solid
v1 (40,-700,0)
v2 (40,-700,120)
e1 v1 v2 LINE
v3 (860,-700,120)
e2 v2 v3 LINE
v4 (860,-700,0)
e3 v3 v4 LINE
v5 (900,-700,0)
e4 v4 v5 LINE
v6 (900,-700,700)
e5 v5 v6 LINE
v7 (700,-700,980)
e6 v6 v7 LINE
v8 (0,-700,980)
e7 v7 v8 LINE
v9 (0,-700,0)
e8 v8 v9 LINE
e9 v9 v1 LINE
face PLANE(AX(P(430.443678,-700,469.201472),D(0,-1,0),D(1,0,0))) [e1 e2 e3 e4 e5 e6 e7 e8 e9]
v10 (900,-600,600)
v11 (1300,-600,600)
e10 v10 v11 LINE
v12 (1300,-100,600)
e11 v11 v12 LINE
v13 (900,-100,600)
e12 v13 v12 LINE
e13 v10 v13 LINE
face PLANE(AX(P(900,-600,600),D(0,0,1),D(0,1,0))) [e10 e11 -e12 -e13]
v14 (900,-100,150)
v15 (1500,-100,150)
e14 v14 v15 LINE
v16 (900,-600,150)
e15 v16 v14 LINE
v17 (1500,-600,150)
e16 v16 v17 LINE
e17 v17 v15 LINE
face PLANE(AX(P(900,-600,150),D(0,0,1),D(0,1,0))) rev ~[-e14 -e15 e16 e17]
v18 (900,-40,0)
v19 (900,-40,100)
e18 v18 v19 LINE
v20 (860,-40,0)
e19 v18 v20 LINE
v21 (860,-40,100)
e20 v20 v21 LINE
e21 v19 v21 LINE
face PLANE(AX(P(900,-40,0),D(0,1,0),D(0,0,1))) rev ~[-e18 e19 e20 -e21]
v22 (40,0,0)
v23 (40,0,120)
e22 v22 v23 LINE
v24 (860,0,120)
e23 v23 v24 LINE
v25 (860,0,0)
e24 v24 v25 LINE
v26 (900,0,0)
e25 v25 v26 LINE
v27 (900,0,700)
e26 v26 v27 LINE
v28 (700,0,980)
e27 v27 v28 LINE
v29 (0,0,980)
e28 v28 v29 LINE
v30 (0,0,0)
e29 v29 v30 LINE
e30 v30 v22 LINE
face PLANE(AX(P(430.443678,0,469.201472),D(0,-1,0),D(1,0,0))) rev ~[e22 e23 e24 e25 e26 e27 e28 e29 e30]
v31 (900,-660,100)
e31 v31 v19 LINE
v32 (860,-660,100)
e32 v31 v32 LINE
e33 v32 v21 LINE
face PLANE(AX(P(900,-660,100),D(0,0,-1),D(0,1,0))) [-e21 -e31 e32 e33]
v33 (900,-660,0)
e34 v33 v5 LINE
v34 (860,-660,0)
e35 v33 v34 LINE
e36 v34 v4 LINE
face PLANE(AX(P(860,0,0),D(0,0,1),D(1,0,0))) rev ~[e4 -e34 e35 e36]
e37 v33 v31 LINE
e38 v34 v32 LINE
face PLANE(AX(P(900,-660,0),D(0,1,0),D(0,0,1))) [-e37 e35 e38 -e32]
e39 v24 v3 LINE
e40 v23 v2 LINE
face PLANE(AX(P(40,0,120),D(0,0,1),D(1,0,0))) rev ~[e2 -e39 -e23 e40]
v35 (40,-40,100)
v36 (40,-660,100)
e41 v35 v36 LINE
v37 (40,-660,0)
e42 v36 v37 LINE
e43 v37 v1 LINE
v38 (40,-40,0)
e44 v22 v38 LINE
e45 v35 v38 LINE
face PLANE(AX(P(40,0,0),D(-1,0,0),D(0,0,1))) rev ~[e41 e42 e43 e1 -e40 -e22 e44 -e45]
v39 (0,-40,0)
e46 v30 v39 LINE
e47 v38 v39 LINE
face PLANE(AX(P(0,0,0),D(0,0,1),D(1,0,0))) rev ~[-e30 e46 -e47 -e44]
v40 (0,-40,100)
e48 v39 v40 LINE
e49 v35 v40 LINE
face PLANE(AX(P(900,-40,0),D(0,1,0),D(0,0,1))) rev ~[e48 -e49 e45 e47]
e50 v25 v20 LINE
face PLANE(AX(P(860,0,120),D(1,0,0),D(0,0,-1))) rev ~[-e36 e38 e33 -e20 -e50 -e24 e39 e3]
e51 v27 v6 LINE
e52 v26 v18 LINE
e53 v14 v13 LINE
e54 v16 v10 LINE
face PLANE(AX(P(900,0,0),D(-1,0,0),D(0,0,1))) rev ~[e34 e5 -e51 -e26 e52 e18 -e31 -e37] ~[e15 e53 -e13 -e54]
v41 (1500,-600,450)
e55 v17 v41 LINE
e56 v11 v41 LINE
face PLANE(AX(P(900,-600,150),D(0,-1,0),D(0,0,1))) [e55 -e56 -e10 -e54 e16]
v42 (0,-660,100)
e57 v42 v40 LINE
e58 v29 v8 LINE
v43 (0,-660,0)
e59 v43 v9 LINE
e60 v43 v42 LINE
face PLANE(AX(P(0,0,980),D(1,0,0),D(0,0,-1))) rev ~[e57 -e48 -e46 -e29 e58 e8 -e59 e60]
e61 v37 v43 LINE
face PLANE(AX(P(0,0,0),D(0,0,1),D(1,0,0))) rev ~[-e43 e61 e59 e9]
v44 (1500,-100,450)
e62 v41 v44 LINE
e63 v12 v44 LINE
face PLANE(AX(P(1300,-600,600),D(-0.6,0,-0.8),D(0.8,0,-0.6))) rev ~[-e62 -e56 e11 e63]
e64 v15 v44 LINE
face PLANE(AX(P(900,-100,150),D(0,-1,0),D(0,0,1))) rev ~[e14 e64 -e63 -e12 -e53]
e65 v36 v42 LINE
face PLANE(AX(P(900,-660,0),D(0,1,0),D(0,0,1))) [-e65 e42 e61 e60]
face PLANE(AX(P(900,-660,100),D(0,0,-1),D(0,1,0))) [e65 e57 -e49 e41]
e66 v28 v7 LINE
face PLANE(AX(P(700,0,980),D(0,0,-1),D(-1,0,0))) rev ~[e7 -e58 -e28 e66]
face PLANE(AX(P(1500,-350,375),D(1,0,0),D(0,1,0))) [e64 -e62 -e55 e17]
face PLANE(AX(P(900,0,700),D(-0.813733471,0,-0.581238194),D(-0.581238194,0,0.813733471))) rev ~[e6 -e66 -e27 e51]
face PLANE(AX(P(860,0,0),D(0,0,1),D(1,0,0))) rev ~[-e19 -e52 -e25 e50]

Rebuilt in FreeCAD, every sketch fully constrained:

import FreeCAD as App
import Part
import Sketcher

V = App.Vector

doc = App.newDocument("Part")
params = doc.addObject("Spreadsheet::Sheet", "Params")
for row, (alias, value) in enumerate([
    ("sketch1_width", "40 mm"),
    ("sketch1_width2", "820 mm"),
    ("sketch1_width3", "700 mm"),
    ("sketch1_height", "980 mm"),
    ("sketch1_height2", "120 mm"),
    ("pad1_length", "700 mm"),
    ("sketch2_width", "500 mm"),
    ("sketch2_height", "450 mm"),
    ("pad2_length", "600 mm"),
    ("sketch3_width", "200 mm"),
    ("sketch3_height", "150 mm"),
    ("sketch4_width", "620 mm"),
    ("sketch4_height", "100 mm"),
], start=1):
    params.set(f"A{row}", alias)
    params.set(f"B{row}", "=" + value)
    params.setAlias(f"B{row}", alias)

body = doc.addObject("PartDesign::Body", "Body")

# Sketch on XZ plane
sketch1 = body.newObject("Sketcher::SketchObject", "Sketch")
sketch1.AttachmentSupport = (doc.getObject("XZ_Plane"), [""])
sketch1.MapMode = "FlatFace"
sketch1.addGeometry(Part.LineSegment(V(0, 980, 0), V(0, 0, 0)), False)
sketch1.addGeometry(Part.LineSegment(V(0, 0, 0), V(40, 0, 0)), False)
sketch1.addGeometry(Part.LineSegment(V(40, 0, 0), V(40, 120, 0)), False)
sketch1.addGeometry(Part.LineSegment(V(40, 120, 0), V(860, 120, 0)), False)
sketch1.addGeometry(Part.LineSegment(V(860, 120, 0), V(860, 0, 0)), False)
sketch1.addGeometry(Part.LineSegment(V(860, 0, 0), V(900, 0, 0)), False)
sketch1.addGeometry(Part.LineSegment(V(900, 0, 0), V(900, 700, 0)), False)
sketch1.addGeometry(Part.LineSegment(V(900, 700, 0), V(700, 980, 0)), False)
sketch1.addGeometry(Part.LineSegment(V(700, 980, 0), V(0, 980, 0)), False)
sketch1.addConstraint(Sketcher.Constraint("Coincident", 0, 2, 1, 1))
sketch1.addConstraint(Sketcher.Constraint("Coincident", 1, 2, 2, 1))
sketch1.addConstraint(Sketcher.Constraint("Coincident", 2, 2, 3, 1))
sketch1.addConstraint(Sketcher.Constraint("Coincident", 3, 2, 4, 1))
sketch1.addConstraint(Sketcher.Constraint("Coincident", 4, 2, 5, 1))
sketch1.addConstraint(Sketcher.Constraint("Coincident", 5, 2, 6, 1))
sketch1.addConstraint(Sketcher.Constraint("Coincident", 6, 2, 7, 1))
sketch1.addConstraint(Sketcher.Constraint("Coincident", 7, 2, 8, 1))
sketch1.addConstraint(Sketcher.Constraint("Coincident", 8, 2, 0, 1))
sketch1.addConstraint(Sketcher.Constraint("Vertical", 0))
sketch1.addConstraint(Sketcher.Constraint("Horizontal", 1))
sketch1.addConstraint(Sketcher.Constraint("Vertical", 2))
sketch1.addConstraint(Sketcher.Constraint("Horizontal", 3))
sketch1.addConstraint(Sketcher.Constraint("Vertical", 4))
sketch1.addConstraint(Sketcher.Constraint("Horizontal", 5))
sketch1.addConstraint(Sketcher.Constraint("Vertical", 6))
sketch1.addConstraint(Sketcher.Constraint("Horizontal", 8))
sketch1.addConstraint(Sketcher.Constraint("Coincident", 0, 2, -1, 1))
sketch1.addConstraint(Sketcher.Constraint("PointOnObject", 4, 2, -1))
sketch1.addConstraint(Sketcher.Constraint("Equal", 1, 5))
sketch1.addConstraint(Sketcher.Constraint("Equal", 8, 6))
sketch1.addConstraint(Sketcher.Constraint("DistanceX", 1, 1, 1, 2, 40.0))
sketch1.addConstraint(Sketcher.Constraint("DistanceX", 3, 1, 3, 2, 820.0))
sketch1.addConstraint(Sketcher.Constraint("DistanceX", 8, 2, 8, 1, 700.0))
sketch1.addConstraint(Sketcher.Constraint("DistanceY", 0, 2, 0, 1, 980.0))
sketch1.addConstraint(Sketcher.Constraint("DistanceY", 2, 1, 2, 2, 120.0))
sketch1.setExpression("Constraints[21]", "Params.sketch1_width")
sketch1.setExpression("Constraints[22]", "Params.sketch1_width2")
sketch1.setExpression("Constraints[23]", "Params.sketch1_width3")
sketch1.setExpression("Constraints[24]", "Params.sketch1_height")
sketch1.setExpression("Constraints[25]", "Params.sketch1_height2")
pad1 = body.newObject("PartDesign::Pad", "Pad")
pad1.Profile = sketch1
pad1.setExpression("Length", "Params.pad1_length")

# Sketch on YZ plane
sketch2 = body.newObject("Sketcher::SketchObject", "Sketch001")
sketch2.AttachmentSupport = (doc.getObject("YZ_Plane"), [""])
sketch2.MapMode = "FlatFace"
sketch2.AttachmentOffset = App.Placement(V(0, 0, 900), App.Rotation())
sketch2.addGeometry(Part.LineSegment(V(-600, 600, 0), V(-600, 150, 0)), False)
sketch2.addGeometry(Part.LineSegment(V(-600, 150, 0), V(-100, 150, 0)), False)
sketch2.addGeometry(Part.LineSegment(V(-100, 150, 0), V(-100, 600, 0)), False)
sketch2.addGeometry(Part.LineSegment(V(-100, 600, 0), V(-600, 600, 0)), False)
sketch2.addConstraint(Sketcher.Constraint("Coincident", 0, 2, 1, 1))
sketch2.addConstraint(Sketcher.Constraint("Coincident", 1, 2, 2, 1))
sketch2.addConstraint(Sketcher.Constraint("Coincident", 2, 2, 3, 1))
sketch2.addConstraint(Sketcher.Constraint("Coincident", 3, 2, 0, 1))
sketch2.addConstraint(Sketcher.Constraint("Vertical", 0))
sketch2.addConstraint(Sketcher.Constraint("Horizontal", 1))
sketch2.addConstraint(Sketcher.Constraint("Vertical", 2))
sketch2.addConstraint(Sketcher.Constraint("Horizontal", 3))
sketch2.addConstraint(Sketcher.Constraint("DistanceX", 1, 1, 1, 2, 500.0))
sketch2.addConstraint(Sketcher.Constraint("DistanceY", 0, 2, 0, 1, 450.0))
sketch2.addConstraint(Sketcher.Constraint("DistanceX", 0, 2, -1, 1, 600.0))
sketch2.addConstraint(Sketcher.Constraint("DistanceY", -1, 1, 0, 2, 150.0))
sketch2.setExpression("Constraints[8]", "Params.sketch2_width")
sketch2.setExpression("Constraints[9]", "Params.sketch2_height")
pad2 = body.newObject("PartDesign::Pad", "Pad001")
pad2.Profile = sketch2
pad2.setExpression("Length", "Params.pad2_length")

# Sketch on XZ plane
sketch3 = body.newObject("Sketcher::SketchObject", "Sketch002")
sketch3.AttachmentSupport = (doc.getObject("XZ_Plane"), [""])
sketch3.MapMode = "FlatFace"
sketch3.AttachmentOffset = App.Placement(V(0, 0, 600), App.Rotation())
sketch3.addGeometry(Part.LineSegment(V(1500, 450, 0), V(1500, 600, 0)), False)
sketch3.addGeometry(Part.LineSegment(V(1500, 600, 0), V(1300, 600, 0)), False)
sketch3.addGeometry(Part.LineSegment(V(1300, 600, 0), V(1500, 450, 0)), False)
sketch3.addConstraint(Sketcher.Constraint("Coincident", 0, 2, 1, 1))
sketch3.addConstraint(Sketcher.Constraint("Coincident", 1, 2, 2, 1))
sketch3.addConstraint(Sketcher.Constraint("Coincident", 2, 2, 0, 1))
sketch3.addConstraint(Sketcher.Constraint("Vertical", 0))
sketch3.addConstraint(Sketcher.Constraint("Horizontal", 1))
sketch3.addConstraint(Sketcher.Constraint("DistanceX", 1, 2, 1, 1, 200.0))
sketch3.addConstraint(Sketcher.Constraint("DistanceY", 0, 1, 0, 2, 150.0))
sketch3.addConstraint(Sketcher.Constraint("DistanceX", -1, 1, 0, 2, 1500.0))
sketch3.addConstraint(Sketcher.Constraint("DistanceY", -1, 1, 0, 2, 600.0))
sketch3.setExpression("Constraints[5]", "Params.sketch3_width")
sketch3.setExpression("Constraints[6]", "Params.sketch3_height")
pocket1 = body.newObject("PartDesign::Pocket", "Pocket")
pocket1.Profile = sketch3
pocket1.Type = "ThroughAll"

# Sketch on YZ plane
sketch4 = body.newObject("Sketcher::SketchObject", "Sketch003")
sketch4.AttachmentSupport = (doc.getObject("YZ_Plane"), [""])
sketch4.MapMode = "FlatFace"
sketch4.AttachmentOffset = App.Placement(V(0, 0, 900), App.Rotation())
sketch4.addGeometry(Part.LineSegment(V(-660, 100, 0), V(-660, 0, 0)), False)
sketch4.addGeometry(Part.LineSegment(V(-660, 0, 0), V(-40, 0, 0)), False)
sketch4.addGeometry(Part.LineSegment(V(-40, 0, 0), V(-40, 100, 0)), False)
sketch4.addGeometry(Part.LineSegment(V(-40, 100, 0), V(-660, 100, 0)), False)
sketch4.addConstraint(Sketcher.Constraint("Coincident", 0, 2, 1, 1))
sketch4.addConstraint(Sketcher.Constraint("Coincident", 1, 2, 2, 1))
sketch4.addConstraint(Sketcher.Constraint("Coincident", 2, 2, 3, 1))
sketch4.addConstraint(Sketcher.Constraint("Coincident", 3, 2, 0, 1))
sketch4.addConstraint(Sketcher.Constraint("Vertical", 0))
sketch4.addConstraint(Sketcher.Constraint("Horizontal", 1))
sketch4.addConstraint(Sketcher.Constraint("Vertical", 2))
sketch4.addConstraint(Sketcher.Constraint("Horizontal", 3))
sketch4.addConstraint(Sketcher.Constraint("PointOnObject", 0, 2, -1))
sketch4.addConstraint(Sketcher.Constraint("DistanceX", 1, 1, 1, 2, 620.0))
sketch4.addConstraint(Sketcher.Constraint("DistanceY", 0, 2, 0, 1, 100.0))
sketch4.addConstraint(Sketcher.Constraint("DistanceX", 0, 2, -1, 1, 660.0))
sketch4.setExpression("Constraints[9]", "Params.sketch4_width")
sketch4.setExpression("Constraints[10]", "Params.sketch4_height")
pocket2 = body.newObject("PartDesign::Pocket", "Pocket001")
pocket2.Profile = sketch4
pocket2.Type = "ThroughAll"

doc.recompute()
